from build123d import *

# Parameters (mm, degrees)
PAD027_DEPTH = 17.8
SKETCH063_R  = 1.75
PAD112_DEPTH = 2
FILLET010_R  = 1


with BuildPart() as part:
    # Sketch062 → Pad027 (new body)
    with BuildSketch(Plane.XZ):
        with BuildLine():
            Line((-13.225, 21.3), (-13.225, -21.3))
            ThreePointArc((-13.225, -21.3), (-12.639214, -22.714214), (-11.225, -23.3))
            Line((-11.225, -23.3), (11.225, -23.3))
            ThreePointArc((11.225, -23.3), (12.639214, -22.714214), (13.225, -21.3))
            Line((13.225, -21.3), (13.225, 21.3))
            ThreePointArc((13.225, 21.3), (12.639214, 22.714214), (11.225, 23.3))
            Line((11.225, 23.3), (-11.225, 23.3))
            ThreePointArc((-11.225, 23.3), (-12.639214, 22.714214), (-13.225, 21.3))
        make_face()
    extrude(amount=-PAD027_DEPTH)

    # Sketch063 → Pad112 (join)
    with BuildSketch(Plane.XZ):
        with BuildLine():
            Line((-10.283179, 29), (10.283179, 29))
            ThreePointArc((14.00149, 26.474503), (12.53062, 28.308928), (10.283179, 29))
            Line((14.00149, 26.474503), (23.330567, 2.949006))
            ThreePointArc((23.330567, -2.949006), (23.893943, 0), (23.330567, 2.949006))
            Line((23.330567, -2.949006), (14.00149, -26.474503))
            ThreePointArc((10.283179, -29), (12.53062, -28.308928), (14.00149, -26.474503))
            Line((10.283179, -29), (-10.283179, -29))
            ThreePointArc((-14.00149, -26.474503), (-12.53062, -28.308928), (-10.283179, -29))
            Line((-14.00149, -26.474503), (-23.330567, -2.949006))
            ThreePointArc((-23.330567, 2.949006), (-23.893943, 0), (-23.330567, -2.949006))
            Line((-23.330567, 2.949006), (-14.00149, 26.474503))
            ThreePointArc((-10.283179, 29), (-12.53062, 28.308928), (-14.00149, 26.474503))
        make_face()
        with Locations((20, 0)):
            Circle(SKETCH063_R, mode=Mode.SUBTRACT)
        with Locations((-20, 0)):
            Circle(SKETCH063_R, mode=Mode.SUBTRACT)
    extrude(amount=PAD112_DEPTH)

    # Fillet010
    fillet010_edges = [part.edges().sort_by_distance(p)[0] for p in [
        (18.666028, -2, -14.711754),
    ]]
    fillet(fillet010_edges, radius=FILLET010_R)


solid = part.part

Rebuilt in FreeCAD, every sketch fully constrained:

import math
import FreeCAD as App
import Part
import Sketcher

V = App.Vector
Q = App.Units.Quantity


def edges_at(feature, points):
    """Names of the edges that pass closest to the given points."""
    edges = feature.Shape.Edges
    near = lambda p: min(range(len(edges)), key=lambda i: edges[i].distToShape(Part.Vertex(*p))[0])
    return sorted({f"Edge{near(p) + 1}" for p in points})

doc = App.newDocument("Part")
body = doc.addObject("PartDesign::Body", "Body")

sketch1 = body.newObject("Sketcher::SketchObject", "Sketch")
sketch1.AttachmentSupport = (doc.getObject("XZ_Plane"), [""])
sketch1.MapMode = "FlatFace"
sketch1.addGeometry(Part.LineSegment(V(-13.2, 21.3, 0), V(-13.2, -21.3, 0)), False)
sketch1.addGeometry(Part.ArcOfCircle(Part.Circle(V(-11.2, -21.3, 0), V(0, 0, 1), 2), math.radians(180), math.radians(270)), False)
sketch1.addGeometry(Part.LineSegment(V(-11.2, -23.3, 0), V(11.2, -23.3, 0)), False)
sketch1.addGeometry(Part.ArcOfCircle(Part.Circle(V(11.2, -21.3, 0), V(0, 0, 1), 2), math.radians(-90), math.radians(0)), False)
sketch1.addGeometry(Part.LineSegment(V(13.2, -21.3, 0), V(13.2, 21.3, 0)), False)
sketch1.addGeometry(Part.ArcOfCircle(Part.Circle(V(11.2, 21.3, 0), V(0, 0, 1), 2), math.radians(0), math.radians(90)), False)
sketch1.addGeometry(Part.LineSegment(V(11.2, 23.3, 0), V(-11.2, 23.3, 0)), False)
sketch1.addGeometry(Part.ArcOfCircle(Part.Circle(V(-11.2, 21.3, 0), V(0, 0, 1), 2), math.radians(90), math.radians(180)), False)
sketch1.addConstraint(Sketcher.Constraint("Tangent", 0, 2, 1, 1))
sketch1.addConstraint(Sketcher.Constraint("Tangent", 1, 2, 2, 1))
sketch1.addConstraint(Sketcher.Constraint("Tangent", 2, 2, 3, 1))
sketch1.addConstraint(Sketcher.Constraint("Tangent", 3, 2, 4, 1))
sketch1.addConstraint(Sketcher.Constraint("Tangent", 4, 2, 5, 1))
sketch1.addConstraint(Sketcher.Constraint("Tangent", 5, 2, 6, 1))
sketch1.addConstraint(Sketcher.Constraint("Tangent", 6, 2, 7, 1))
sketch1.addConstraint(Sketcher.Constraint("Tangent", 7, 2, 0, 1))
sketch1.addConstraint(Sketcher.Constraint("Vertical", 0))
sketch1.addConstraint(Sketcher.Constraint("Horizontal", 2))
sketch1.addConstraint(Sketcher.Constraint("Vertical", 4))
sketch1.addConstraint(Sketcher.Constraint("Horizontal", 6))
sketch1.addConstraint(Sketcher.Constraint("Equal", 1, 3))
sketch1.addConstraint(Sketcher.Constraint("Equal", 3, 5))
sketch1.addConstraint(Sketcher.Constraint("Equal", 5, 7))
sketch1.addConstraint(Sketcher.Constraint("Symmetric", 1, 3, 5, 3, -1, 1))
sketch1.addConstraint(Sketcher.Constraint("Radius", 1, Q("1.999999 mm")))
sketch1.addConstraint(Sketcher.Constraint("DistanceY", 0, 2, 0, 1, Q("42.6 mm")))
sketch1.addConstraint(Sketcher.Constraint("DistanceX", 2, 1, 2, 2, Q("22.45 mm")))
pad1 = body.newObject("PartDesign::Pad", "Pad")
pad1.Profile = sketch1
pad1.Length = 17.8
pad1.Reversed = True

sketch2 = body.newObject("Sketcher::SketchObject", "Sketch001")
sketch2.AttachmentSupport = (doc.getObject("XZ_Plane"), [""])
sketch2.MapMode = "FlatFace"
sketch2.addGeometry(Part.LineSegment(V(10.283179, 29, 0), V(-10.283179, 29, 0)), False)
sketch2.addGeometry(Part.ArcOfCircle(Part.Circle(V(-10.283178, 24.999999, 0), V(0, 0, 1), 4.000001), math.radians(90.000019), math.radians(158.3691)), False)
sketch2.addGeometry(Part.LineSegment(V(-14.00149, 26.474503, 0), V(-23.330567, 2.949006, 0)), False)
sketch2.addGeometry(Part.ArcOfCircle(Part.Circle(V(-15.893932, 0, 0), V(0, 0, 1), 8.000011), math.radians(158.369144), math.radians(201.630856)), False)
sketch2.addGeometry(Part.LineSegment(V(-23.330567, -2.949006, 0), V(-14.00149, -26.474503, 0)), False)
sketch2.addGeometry(Part.ArcOfCircle(Part.Circle(V(-10.283178, -24.999999, 0), V(0, 0, 1), 4.000001), math.radians(-158.3691), math.radians(-90.000019)), False)
sketch2.addGeometry(Part.LineSegment(V(-10.283179, -29, 0), V(10.283179, -29, 0)), False)
sketch2.addGeometry(Part.ArcOfCircle(Part.Circle(V(10.283178, -24.999999, 0), V(0, 0, 1), 4.000001), math.radians(-89.999981), math.radians(-21.6309)), False)
sketch2.addGeometry(Part.LineSegment(V(14.00149, -26.474503, 0), V(23.330567, -2.949006, 0)), False)
sketch2.addGeometry(Part.ArcOfCircle(Part.Circle(V(15.893932, 0, 0), V(0, 0, 1), 8.000011), math.radians(-21.630856), math.radians(21.630856)), False)
sketch2.addGeometry(Part.LineSegment(V(23.330567, 2.949006, 0), V(14.00149, 26.474503, 0)), False)
sketch2.addGeometry(Part.ArcOfCircle(Part.Circle(V(10.283178, 24.999999, 0), V(0, 0, 1), 4.000001), math.radians(21.6309), math.radians(89.999981)), False)
sketch2.addGeometry(Part.Circle(V(20, 0, 0), V(0, 0, 1), 1.75), False)
sketch2.addGeometry(Part.Circle(V(-20, 0, 0), V(0, 0, 1), 1.75), False)
sketch2.addConstraint(Sketcher.Constraint("Coincident", 0, 2, 1, 1))
sketch2.addConstraint(Sketcher.Constraint("Coincident", 1, 2, 2, 1))
sketch2.addConstraint(Sketcher.Constraint("Coincident", 2, 2, 3, 1))
sketch2.addConstraint(Sketcher.Constraint("Coincident", 3, 2, 4, 1))
sketch2.addConstraint(Sketcher.Constraint("Coincident", 4, 2, 5, 1))
sketch2.addConstraint(Sketcher.Constraint("Coincident", 5, 2, 6, 1))
sketch2.addConstraint(Sketcher.Constraint("Coincident", 6, 2, 7, 1))
sketch2.addConstraint(Sketcher.Constraint("Coincident", 7, 2, 8, 1))
sketch2.addConstraint(Sketcher.Constraint("Coincident", 8, 2, 9, 1))
sketch2.addConstraint(Sketcher.Constraint("Coincident", 9, 2, 10, 1))
sketch2.addConstraint(Sketcher.Constraint("Coincident", 10, 2, 11, 1))
sketch2.addConstraint(Sketcher.Constraint("Coincident", 11, 2, 0, 1))
sketch2.addConstraint(Sketcher.Constraint("Horizontal", 0))
sketch2.addConstraint(Sketcher.Constraint("Horizontal", 6))
sketch2.addConstraint(Sketcher.Constraint("PointOnObject", 3, 3, -1))
sketch2.addConstraint(Sketcher.Constraint("PointOnObject", 9, 3, -1))
sketch2.addConstraint(Sketcher.Constraint("PointOnObject", 12, 3, -1))
sketch2.addConstraint(Sketcher.Constraint("PointOnObject", 13, 3, -1))
sketch2.addConstraint(Sketcher.Constraint("Radius", 1, Q("4.000001 mm")))
sketch2.addConstraint(Sketcher.Constraint("Radius", 5, Q("4.000001 mm")))
sketch2.addConstraint(Sketcher.Constraint("Radius", 7, Q("4.000001 mm")))
sketch2.addConstraint(Sketcher.Constraint("Radius", 11, Q("4.000001 mm")))
sketch2.addConstraint(Sketcher.Constraint("Diameter", 12, Q("3.5 mm")))
sketch2.addConstraint(Sketcher.Constraint("Diameter", 13, Q("3.5 mm")))
sketch2.addConstraint(Sketcher.Constraint("DistanceY", -1, 1, 1, 3, Q("24.999999 mm")))
sketch2.addConstraint(Sketcher.Constraint("DistanceY", 5, 3, -1, 1, Q("24.999999 mm")))
sketch2.addConstraint(Sketcher.Constraint("DistanceX", -1, 1, 12, 3, Q("20 mm")))
sketch2.addConstraint(Sketcher.Constraint("DistanceX", 13, 3, -1, 1, Q("20 mm")))
sketch2.addConstraint(Sketcher.Constraint("Radius", 3, Q("8.000011 mm")))
sketch2.addConstraint(Sketcher.Constraint("Radius", 9, Q("8.000011 mm")))
sketch2.addConstraint(Sketcher.Constraint("DistanceX", 0, 2, 0, 1, Q("20.566358 mm")))
sketch2.addConstraint(Sketcher.Constraint("DistanceX", 6, 1, 6, 2, Q("20.566358 mm")))
sketch2.addConstraint(Sketcher.Constraint("Distance", 2, Q("25.30772 mm")))
sketch2.addConstraint(Sketcher.Constraint("Distance", 4, Q("25.30772 mm")))
sketch2.addConstraint(Sketcher.Constraint("Distance", 8, Q("25.30772 mm")))
sketch2.addConstraint(Sketcher.Constraint("Distance", 10, Q("25.30772 mm")))
sketch2.addConstraint(Sketcher.Constraint("DistanceX", 3, 3, -1, 1, Q("15.893932 mm")))
sketch2.addConstraint(Sketcher.Constraint("DistanceX", -1, 1, 9, 3, Q("15.893932 mm")))
sketch2.addConstraint(Sketcher.Constraint("DistanceX", 0, 2, -1, 1, Q("10.283179 mm")))
sketch2.addConstraint(Sketcher.Constraint("DistanceX", 1, 2, -1, 1, Q("14.00149 mm")))
sketch2.addConstraint(Sketcher.Constraint("DistanceX", 4, 2, -1, 1, Q("14.00149 mm")))
sketch2.addConstraint(Sketcher.Constraint("DistanceX", 5, 2, -1, 1, Q("10.283179 mm")))
sketch2.addConstraint(Sketcher.Constraint("DistanceX", -1, 1, 7, 2, Q("14.00149 mm")))
sketch2.addConstraint(Sketcher.Constraint("DistanceX", -1, 1, 10, 2, Q("14.00149 mm")))
sketch2.addConstraint(Sketcher.Constraint("DistanceX", 3, 3, 7, 3, Q("26.177109 mm")))
sketch2.addConstraint(Sketcher.Constraint("DistanceX", 1, 3, 9, 3, Q("26.177109 mm")))
sketch2.addConstraint(Sketcher.Constraint("DistanceX", 5, 3, 9, 3, Q("26.177109 mm")))
sketch2.addConstraint(Sketcher.Constraint("DistanceX", 3, 3, 11, 3, Q("26.177109 mm")))
pad2 = body.newObject("PartDesign::Pad", "Pad001")
pad2.Profile = sketch2
pad2.Length = 2
doc.recompute()

fillet = body.newObject("PartDesign::Fillet", "Fillet")
fillet.Base = (pad2, edges_at(pad2, [(18.666, -2, -14.712)]))
fillet.Radius = 1

doc.recompute()
